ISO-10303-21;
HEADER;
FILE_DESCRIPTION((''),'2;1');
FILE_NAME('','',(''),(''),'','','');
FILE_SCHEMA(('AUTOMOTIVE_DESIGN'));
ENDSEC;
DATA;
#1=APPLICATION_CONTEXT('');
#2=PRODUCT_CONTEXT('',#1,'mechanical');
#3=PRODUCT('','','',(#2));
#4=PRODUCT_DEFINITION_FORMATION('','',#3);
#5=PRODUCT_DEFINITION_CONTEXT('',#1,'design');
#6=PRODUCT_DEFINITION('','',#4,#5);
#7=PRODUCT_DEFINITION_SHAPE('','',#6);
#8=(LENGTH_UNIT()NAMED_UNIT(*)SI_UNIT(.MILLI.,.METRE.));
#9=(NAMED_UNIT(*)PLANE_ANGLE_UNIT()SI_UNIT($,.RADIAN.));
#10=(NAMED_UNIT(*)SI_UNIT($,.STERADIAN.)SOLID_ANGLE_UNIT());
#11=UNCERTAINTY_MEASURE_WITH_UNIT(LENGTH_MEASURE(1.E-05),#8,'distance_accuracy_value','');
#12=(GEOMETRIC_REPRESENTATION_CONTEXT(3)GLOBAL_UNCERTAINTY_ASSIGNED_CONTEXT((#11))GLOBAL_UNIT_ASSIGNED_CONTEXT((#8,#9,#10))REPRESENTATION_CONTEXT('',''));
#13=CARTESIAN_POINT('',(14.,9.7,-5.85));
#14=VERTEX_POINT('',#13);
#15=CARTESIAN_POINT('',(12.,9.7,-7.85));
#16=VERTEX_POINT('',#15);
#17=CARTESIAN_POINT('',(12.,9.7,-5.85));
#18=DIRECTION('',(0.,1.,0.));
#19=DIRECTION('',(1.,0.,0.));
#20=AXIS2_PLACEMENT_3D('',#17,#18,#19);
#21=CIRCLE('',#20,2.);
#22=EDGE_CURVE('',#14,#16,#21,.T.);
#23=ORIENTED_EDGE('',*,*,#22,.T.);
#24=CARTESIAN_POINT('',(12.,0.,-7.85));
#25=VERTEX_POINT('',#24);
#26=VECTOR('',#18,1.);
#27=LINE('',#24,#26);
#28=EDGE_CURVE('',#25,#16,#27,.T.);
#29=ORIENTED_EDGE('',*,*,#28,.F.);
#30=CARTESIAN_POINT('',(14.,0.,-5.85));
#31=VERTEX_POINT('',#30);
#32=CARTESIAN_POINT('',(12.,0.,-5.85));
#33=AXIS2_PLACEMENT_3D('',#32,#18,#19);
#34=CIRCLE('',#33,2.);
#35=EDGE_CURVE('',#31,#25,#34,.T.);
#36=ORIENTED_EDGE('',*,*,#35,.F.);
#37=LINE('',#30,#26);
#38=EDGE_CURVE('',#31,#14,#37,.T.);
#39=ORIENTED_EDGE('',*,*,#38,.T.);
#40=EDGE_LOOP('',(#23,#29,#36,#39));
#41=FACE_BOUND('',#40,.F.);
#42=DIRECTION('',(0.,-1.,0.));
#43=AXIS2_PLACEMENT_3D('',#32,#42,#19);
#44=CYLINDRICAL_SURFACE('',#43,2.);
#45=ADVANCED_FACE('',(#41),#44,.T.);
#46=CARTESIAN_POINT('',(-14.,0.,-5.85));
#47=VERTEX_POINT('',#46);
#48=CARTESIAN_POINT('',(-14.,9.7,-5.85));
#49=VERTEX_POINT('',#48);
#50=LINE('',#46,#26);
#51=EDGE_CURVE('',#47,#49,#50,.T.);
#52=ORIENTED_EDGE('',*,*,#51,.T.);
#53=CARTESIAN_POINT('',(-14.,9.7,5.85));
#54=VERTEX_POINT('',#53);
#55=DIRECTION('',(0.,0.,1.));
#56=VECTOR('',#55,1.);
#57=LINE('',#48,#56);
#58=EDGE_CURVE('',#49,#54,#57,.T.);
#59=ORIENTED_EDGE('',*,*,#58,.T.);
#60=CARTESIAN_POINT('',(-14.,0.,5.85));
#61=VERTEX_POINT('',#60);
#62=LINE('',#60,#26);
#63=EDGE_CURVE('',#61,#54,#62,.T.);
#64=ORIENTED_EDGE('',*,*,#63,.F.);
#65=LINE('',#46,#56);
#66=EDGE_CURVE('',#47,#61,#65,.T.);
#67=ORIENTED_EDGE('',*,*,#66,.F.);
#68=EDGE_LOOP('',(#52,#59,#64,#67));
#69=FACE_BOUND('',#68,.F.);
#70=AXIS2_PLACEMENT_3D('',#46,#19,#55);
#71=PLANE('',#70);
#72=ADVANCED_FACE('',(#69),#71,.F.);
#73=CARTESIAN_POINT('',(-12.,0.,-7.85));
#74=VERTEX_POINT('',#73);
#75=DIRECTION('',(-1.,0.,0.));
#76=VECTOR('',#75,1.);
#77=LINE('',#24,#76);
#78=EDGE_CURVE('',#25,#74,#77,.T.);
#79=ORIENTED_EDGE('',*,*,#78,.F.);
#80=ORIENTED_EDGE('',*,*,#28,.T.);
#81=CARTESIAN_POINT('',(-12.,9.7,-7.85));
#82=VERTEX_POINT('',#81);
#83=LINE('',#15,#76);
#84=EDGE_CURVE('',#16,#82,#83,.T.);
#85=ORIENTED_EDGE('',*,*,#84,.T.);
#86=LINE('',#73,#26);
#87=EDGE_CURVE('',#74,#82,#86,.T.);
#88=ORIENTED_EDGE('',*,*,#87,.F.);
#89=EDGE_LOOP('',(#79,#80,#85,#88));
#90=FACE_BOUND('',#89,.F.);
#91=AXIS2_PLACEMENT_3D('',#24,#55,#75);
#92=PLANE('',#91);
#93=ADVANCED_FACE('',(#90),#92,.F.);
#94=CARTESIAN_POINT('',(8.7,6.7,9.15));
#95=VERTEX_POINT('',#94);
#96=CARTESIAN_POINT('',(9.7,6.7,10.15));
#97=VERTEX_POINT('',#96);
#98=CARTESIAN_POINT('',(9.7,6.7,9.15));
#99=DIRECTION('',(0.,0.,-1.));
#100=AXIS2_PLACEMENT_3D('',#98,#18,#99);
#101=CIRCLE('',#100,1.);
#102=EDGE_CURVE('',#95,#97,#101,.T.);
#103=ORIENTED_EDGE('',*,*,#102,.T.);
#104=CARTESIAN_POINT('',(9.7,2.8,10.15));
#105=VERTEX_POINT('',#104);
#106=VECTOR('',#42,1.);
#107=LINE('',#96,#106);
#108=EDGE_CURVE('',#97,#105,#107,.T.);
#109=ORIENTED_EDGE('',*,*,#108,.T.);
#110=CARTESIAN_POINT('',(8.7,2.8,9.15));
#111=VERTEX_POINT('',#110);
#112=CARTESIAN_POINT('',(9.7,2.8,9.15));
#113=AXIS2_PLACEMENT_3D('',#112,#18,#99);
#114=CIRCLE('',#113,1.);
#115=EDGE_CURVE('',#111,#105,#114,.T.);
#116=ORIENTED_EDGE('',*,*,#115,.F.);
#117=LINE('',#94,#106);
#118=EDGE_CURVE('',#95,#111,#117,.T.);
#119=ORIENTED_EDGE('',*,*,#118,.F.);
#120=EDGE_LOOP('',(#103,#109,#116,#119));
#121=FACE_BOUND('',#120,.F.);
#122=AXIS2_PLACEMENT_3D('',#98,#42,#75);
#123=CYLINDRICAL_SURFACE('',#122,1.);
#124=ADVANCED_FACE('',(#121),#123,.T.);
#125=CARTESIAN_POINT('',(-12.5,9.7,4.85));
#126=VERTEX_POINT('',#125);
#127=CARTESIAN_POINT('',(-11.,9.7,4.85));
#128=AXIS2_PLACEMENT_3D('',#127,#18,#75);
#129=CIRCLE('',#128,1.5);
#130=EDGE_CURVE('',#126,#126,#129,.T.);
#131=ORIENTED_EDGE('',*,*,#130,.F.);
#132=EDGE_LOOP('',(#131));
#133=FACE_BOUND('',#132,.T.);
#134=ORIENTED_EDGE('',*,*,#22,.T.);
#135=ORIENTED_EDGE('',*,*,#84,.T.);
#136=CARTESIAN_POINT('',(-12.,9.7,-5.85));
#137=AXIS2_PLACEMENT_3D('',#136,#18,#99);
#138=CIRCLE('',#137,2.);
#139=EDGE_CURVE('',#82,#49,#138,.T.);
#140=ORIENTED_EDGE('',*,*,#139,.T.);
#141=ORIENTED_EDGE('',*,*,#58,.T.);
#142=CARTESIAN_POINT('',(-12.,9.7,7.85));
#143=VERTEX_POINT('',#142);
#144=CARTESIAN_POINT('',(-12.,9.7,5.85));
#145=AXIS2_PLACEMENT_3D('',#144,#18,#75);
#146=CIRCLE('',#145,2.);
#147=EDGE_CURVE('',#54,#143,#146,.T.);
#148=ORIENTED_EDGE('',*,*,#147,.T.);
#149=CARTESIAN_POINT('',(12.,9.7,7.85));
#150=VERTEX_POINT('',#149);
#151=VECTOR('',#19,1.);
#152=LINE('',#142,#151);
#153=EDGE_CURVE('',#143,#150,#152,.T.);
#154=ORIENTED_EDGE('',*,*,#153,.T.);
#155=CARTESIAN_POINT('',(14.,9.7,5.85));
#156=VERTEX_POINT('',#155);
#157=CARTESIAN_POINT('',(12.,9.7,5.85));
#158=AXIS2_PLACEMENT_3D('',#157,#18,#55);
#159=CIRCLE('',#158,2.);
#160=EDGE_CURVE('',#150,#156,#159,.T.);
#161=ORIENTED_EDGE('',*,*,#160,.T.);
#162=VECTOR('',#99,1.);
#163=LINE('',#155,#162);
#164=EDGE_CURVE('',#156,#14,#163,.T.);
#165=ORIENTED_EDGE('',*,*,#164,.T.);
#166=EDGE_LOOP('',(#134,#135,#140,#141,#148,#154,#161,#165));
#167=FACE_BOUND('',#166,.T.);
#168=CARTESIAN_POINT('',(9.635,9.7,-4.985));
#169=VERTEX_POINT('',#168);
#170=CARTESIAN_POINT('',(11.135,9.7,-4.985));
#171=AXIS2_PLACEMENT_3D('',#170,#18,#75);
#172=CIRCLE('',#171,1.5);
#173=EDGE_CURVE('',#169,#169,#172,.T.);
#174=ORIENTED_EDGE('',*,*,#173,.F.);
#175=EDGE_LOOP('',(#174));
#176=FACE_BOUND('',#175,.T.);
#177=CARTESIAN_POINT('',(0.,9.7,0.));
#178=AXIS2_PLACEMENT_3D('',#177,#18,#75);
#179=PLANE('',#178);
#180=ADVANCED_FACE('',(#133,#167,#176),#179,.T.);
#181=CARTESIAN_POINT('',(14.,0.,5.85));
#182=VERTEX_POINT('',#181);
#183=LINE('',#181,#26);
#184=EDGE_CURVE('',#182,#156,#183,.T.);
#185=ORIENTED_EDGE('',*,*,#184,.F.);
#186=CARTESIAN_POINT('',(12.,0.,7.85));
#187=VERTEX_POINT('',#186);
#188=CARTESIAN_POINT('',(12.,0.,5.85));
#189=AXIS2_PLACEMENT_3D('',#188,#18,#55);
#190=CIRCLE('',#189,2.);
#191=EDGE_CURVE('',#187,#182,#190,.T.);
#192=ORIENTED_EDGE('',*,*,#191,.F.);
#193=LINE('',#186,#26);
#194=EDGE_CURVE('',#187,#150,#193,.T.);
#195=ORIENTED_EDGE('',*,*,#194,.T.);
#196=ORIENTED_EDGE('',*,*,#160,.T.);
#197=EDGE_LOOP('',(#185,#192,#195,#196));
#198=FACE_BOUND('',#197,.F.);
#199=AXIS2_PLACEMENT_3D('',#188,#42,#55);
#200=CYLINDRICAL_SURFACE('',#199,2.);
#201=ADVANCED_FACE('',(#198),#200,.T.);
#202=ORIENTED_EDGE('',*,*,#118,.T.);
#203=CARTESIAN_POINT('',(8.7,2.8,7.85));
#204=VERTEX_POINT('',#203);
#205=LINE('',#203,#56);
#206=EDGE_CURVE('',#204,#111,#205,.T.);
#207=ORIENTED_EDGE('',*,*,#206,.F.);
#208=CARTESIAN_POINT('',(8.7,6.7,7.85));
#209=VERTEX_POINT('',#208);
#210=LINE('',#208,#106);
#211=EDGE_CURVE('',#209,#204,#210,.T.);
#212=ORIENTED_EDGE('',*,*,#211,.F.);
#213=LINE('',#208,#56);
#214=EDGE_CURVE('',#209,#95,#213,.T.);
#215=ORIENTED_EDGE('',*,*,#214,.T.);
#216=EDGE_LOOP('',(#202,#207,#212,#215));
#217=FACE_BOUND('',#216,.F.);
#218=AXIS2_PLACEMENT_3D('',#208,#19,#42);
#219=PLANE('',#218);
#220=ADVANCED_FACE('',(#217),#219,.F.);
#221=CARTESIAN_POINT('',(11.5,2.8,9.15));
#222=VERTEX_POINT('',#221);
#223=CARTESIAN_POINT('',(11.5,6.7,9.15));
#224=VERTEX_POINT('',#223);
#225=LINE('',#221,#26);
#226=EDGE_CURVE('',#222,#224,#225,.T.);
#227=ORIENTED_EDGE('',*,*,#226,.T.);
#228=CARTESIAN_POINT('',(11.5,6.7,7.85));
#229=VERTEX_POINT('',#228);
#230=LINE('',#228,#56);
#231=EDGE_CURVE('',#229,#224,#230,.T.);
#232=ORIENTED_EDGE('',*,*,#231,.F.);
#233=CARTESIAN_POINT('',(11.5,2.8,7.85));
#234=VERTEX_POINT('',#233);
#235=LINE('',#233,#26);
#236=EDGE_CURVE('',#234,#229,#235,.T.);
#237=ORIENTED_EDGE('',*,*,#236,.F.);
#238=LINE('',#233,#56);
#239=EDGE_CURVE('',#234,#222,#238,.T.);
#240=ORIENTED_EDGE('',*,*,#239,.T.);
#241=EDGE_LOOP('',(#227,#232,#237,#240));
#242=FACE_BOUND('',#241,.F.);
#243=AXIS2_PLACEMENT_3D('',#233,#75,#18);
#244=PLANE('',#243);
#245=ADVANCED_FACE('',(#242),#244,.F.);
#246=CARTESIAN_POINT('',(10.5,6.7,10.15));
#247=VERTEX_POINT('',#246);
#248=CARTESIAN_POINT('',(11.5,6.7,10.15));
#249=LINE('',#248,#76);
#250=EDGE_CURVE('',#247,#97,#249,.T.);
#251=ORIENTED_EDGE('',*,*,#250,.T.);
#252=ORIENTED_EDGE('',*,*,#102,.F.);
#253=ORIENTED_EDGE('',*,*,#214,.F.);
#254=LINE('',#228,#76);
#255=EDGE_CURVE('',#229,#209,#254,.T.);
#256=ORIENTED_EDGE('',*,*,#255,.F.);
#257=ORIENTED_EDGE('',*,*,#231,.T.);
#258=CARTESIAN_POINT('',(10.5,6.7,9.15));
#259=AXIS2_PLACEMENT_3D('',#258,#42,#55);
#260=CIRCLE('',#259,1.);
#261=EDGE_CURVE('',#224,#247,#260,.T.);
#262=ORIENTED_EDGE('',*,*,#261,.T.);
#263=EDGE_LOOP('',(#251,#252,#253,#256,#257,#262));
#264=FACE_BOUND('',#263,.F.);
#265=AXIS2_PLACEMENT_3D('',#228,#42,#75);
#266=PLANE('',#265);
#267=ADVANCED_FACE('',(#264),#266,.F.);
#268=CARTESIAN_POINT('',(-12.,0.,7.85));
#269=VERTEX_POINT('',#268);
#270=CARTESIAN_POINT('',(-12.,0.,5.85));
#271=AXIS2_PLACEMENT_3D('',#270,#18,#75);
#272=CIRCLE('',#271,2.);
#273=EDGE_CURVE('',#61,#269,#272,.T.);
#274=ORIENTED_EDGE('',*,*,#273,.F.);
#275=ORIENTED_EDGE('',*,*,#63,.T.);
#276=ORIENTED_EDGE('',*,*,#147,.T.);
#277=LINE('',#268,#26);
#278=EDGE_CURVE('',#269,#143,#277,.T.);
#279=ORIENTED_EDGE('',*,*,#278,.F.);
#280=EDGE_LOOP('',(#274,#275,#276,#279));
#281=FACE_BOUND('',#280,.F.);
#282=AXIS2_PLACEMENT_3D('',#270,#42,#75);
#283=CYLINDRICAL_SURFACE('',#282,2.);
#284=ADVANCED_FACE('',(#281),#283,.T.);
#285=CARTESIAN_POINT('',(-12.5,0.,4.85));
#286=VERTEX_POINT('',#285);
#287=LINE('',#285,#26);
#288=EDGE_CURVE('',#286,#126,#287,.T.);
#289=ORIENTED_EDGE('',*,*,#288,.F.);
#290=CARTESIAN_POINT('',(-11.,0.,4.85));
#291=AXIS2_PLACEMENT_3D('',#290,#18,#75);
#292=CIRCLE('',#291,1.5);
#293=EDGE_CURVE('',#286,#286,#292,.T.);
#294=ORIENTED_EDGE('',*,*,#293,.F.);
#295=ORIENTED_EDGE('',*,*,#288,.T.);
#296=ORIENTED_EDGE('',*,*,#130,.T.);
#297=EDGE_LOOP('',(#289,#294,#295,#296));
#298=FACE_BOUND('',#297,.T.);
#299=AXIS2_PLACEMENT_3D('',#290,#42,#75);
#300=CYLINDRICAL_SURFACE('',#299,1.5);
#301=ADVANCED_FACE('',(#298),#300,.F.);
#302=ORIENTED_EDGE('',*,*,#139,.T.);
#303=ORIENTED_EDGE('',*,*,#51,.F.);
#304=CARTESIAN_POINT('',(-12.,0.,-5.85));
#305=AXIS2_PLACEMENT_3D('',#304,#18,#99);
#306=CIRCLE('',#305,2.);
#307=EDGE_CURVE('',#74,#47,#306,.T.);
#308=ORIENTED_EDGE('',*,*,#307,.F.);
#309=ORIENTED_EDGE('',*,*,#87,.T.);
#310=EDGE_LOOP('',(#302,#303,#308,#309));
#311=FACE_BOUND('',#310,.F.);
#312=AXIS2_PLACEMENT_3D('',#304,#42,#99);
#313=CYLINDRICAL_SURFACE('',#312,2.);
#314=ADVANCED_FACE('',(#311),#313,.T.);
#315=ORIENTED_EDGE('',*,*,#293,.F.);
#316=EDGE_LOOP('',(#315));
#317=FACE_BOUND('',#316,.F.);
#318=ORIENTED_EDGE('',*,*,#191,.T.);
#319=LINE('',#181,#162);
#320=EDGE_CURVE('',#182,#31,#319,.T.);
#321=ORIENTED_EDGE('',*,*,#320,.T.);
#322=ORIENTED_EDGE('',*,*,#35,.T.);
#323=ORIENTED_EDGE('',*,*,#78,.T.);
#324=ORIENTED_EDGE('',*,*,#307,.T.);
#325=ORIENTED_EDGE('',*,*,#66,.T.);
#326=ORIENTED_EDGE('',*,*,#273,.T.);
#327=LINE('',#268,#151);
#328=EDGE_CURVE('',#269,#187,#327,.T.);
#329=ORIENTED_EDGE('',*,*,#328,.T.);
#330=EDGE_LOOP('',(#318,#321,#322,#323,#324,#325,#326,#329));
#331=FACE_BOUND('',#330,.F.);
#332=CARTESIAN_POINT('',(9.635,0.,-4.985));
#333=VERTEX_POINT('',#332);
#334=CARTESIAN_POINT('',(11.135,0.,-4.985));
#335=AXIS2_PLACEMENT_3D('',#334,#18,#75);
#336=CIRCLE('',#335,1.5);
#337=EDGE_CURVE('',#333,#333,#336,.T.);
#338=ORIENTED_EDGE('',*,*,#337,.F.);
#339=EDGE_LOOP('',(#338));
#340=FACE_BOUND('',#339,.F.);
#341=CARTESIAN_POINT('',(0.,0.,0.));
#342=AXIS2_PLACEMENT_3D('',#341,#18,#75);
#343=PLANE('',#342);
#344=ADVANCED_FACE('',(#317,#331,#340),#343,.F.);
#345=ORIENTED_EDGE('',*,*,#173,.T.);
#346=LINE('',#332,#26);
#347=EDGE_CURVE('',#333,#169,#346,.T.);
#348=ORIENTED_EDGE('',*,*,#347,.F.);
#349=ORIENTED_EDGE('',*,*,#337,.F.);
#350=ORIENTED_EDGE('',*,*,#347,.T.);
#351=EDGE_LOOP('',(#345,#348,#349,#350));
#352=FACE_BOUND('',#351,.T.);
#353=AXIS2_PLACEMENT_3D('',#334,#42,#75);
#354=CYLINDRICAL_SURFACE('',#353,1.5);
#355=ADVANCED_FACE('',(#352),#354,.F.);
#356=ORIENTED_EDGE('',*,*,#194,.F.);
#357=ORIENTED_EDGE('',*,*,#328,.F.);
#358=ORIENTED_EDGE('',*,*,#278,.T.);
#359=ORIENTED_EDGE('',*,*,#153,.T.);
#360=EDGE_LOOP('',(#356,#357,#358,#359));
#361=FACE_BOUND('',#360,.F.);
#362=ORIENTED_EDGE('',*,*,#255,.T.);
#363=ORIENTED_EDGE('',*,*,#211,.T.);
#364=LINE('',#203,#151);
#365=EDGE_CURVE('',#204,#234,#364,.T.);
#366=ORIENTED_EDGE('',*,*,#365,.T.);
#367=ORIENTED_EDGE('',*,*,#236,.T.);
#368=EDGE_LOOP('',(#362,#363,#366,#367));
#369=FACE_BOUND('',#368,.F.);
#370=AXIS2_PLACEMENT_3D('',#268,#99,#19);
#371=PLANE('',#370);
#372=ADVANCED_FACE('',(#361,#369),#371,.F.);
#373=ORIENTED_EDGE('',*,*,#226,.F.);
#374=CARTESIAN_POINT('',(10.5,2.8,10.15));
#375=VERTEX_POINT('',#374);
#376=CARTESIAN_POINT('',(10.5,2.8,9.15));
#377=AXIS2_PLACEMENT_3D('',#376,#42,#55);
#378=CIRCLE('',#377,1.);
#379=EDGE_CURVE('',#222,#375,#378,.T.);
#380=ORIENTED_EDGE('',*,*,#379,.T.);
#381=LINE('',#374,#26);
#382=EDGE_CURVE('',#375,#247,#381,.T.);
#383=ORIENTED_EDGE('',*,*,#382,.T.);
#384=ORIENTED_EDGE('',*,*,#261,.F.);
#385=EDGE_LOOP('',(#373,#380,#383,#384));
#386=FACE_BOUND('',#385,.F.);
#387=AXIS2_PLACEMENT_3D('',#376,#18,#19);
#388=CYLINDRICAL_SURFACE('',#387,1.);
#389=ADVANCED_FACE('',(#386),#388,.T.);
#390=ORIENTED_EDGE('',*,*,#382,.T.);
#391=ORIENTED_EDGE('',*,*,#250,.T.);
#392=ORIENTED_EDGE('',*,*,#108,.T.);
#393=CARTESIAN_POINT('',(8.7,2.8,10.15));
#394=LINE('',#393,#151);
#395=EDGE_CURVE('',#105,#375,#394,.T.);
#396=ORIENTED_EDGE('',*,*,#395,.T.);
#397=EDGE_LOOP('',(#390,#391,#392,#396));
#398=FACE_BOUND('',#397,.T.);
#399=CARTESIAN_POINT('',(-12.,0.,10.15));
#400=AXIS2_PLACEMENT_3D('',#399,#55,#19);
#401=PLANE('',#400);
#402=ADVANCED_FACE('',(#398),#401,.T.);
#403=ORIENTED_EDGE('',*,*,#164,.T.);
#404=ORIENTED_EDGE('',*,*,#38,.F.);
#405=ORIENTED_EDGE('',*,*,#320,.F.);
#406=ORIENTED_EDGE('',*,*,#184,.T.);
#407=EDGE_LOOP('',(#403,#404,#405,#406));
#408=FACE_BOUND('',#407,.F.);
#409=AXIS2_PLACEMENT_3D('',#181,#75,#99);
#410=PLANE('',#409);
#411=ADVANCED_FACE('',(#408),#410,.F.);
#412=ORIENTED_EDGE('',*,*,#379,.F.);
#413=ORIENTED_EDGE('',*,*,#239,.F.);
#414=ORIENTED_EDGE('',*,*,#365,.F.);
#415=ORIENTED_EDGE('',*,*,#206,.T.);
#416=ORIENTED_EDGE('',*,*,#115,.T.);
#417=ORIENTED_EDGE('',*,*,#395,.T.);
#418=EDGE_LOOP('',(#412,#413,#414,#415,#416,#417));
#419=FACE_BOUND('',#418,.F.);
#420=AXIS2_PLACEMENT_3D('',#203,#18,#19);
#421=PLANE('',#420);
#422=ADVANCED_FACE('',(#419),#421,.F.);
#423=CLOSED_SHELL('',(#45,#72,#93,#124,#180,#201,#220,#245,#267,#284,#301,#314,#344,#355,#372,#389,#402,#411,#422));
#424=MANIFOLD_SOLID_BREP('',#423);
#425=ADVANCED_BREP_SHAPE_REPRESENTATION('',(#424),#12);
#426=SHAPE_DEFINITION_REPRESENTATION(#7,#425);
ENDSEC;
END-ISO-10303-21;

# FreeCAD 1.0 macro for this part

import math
import FreeCAD as App
import Part
import Sketcher
from FreeCAD import Vector
Q = App.Units.Quantity


def edges_at(feature, points):
    """Names of the edges that pass closest to the given points."""
    edges = feature.Shape.Edges
    near = lambda p: min(range(len(edges)), key=lambda i: edges[i].distToShape(Part.Vertex(*p))[0])
    return sorted({f"Edge{near(p) + 1}" for p in points})

doc = App.newDocument("Part")
body = doc.addObject("PartDesign::Body", "Body")

sketch1 = doc.addObject("Sketcher::SketchObject", "Sketch")
body.addObject(sketch1)
sketch1.AttachmentSupport = (doc.XZ_Plane, [""])
sketch1.MapMode = "FlatFace"
sketch1.addGeometry([
    Part.ArcOfCircle(Part.Circle(Vector(-12, 5.8, 0), Vector(0, 0, 1), 2), math.radians(90), math.radians(180)),
    Part.LineSegment(Vector(-12, 7.8, 0), Vector(12, 7.8, 0)),
    Part.ArcOfCircle(Part.Circle(Vector(12, 5.8, 0), Vector(0, 0, 1), 2), math.radians(0), math.radians(90)),
    Part.LineSegment(Vector(14, 5.8, 0), Vector(14, -5.8, 0)),
    Part.ArcOfCircle(Part.Circle(Vector(12, -5.8, 0), Vector(0, 0, 1), 2), math.radians(-90), math.radians(0)),
    Part.LineSegment(Vector(12, -7.8, 0), Vector(-12, -7.8, 0)),
    Part.ArcOfCircle(Part.Circle(Vector(-12, -5.8, 0), Vector(0, 0, 1), 2), math.radians(180), math.radians(270)),
    Part.LineSegment(Vector(-14, -5.8, 0), Vector(-14, 5.8, 0)),
    Part.Circle(Vector(11.1, -5, 0), Vector(0, 0, 1), 1.5),
    Part.Circle(Vector(-11, 4.8, 0), Vector(0, 0, 1), 1.5),
], False)
sketch1.addConstraint([
    Sketcher.Constraint("Tangent", 0, 1, 1, 1),
    Sketcher.Constraint("Tangent", 1, 2, 2, 2),
    Sketcher.Constraint("Tangent", 2, 1, 3, 1),
    Sketcher.Constraint("Tangent", 3, 2, 4, 2),
    Sketcher.Constraint("Tangent", 4, 1, 5, 1),
    Sketcher.Constraint("Tangent", 5, 2, 6, 2),
    Sketcher.Constraint("Tangent", 6, 1, 7, 1),
    Sketcher.Constraint("Tangent", 7, 2, 0, 2),
    Sketcher.Constraint("Horizontal", 1),
    Sketcher.Constraint("Vertical", 3),
    Sketcher.Constraint("Horizontal", 5),
    Sketcher.Constraint("Vertical", 7),
    Sketcher.Constraint("Equal", 0, 2),
    Sketcher.Constraint("Equal", 2, 4),
    Sketcher.Constraint("Equal", 4, 6),
    Sketcher.Constraint("Equal", 8, 9),
    Sketcher.Constraint("Symmetric", 0, 3, 4, 3, -1, 1),
    Sketcher.Constraint("Diameter", 8, Q("3 mm")),
    Sketcher.Constraint("Radius", 0, Q("2 mm")),
    Sketcher.Constraint("DistanceY", 9, 3, 0, 1, Q("3 mm")),
    Sketcher.Constraint("DistanceX", 6, 1, 9, 3, Q("3 mm")),
    Sketcher.Constraint("DistanceY", 5, 2, 0, 1, Q("15.7 mm")),
    Sketcher.Constraint("DistanceX", 1, 1, 1, 2, Q("24 mm")),
    Sketcher.Constraint("DistanceX", -1, 1, 8, 3, Q("11.135 mm")),
    Sketcher.Constraint("DistanceY", 8, 3, -1, 1, Q("4.985 mm")),
])
pad1 = doc.addObject("PartDesign::Pad", "Pad")
body.addObject(pad1)
pad1.Profile = sketch1
pad1.Length = 9.7
pad1.Reversed = True

sketch2 = doc.addObject("Sketcher::SketchObject", "Sketch001")
body.addObject(sketch2)
sketch2.AttachmentSupport = (doc.XY_Plane, [""])
sketch2.MapMode = "FlatFace"
sketch2.AttachmentOffset = App.Placement(Vector(0, 0, 7.85), App.Rotation())
sketch2.addGeometry([
    Part.LineSegment(Vector(11.5, 2.8, 0), Vector(11.5, 6.7, 0)),
    Part.LineSegment(Vector(11.5, 6.7, 0), Vector(8.7, 6.7, 0)),
    Part.LineSegment(Vector(8.7, 6.7, 0), Vector(8.7, 2.8, 0)),
    Part.LineSegment(Vector(8.7, 2.8, 0), Vector(11.5, 2.8, 0)),
], False)
sketch2.addConstraint([
    Sketcher.Constraint("Coincident", 0, 2, 1, 1),
    Sketcher.Constraint("Coincident", 1, 2, 2, 1),
    Sketcher.Constraint("Coincident", 2, 2, 3, 1),
    Sketcher.Constraint("Coincident", 3, 2, 0, 1),
    Sketcher.Constraint("Vertical", 0),
    Sketcher.Constraint("Horizontal", 1),
    Sketcher.Constraint("Vertical", 2),
    Sketcher.Constraint("Horizontal", 3),
    Sketcher.Constraint("DistanceX", 1, 2, 1, 1, Q("2.8 mm")),
    Sketcher.Constraint("DistanceY", 0, 1, 0, 2, Q("3.9 mm")),
    Sketcher.Constraint("DistanceY", -1, 1, 2, 2, Q("2.8 mm")),
    Sketcher.Constraint("DistanceX", -1, 1, 0, 2, Q("11.5 mm")),
])
pad2 = doc.addObject("PartDesign::Pad", "Pad001")
body.addObject(pad2)
pad2.Profile = sketch2
pad2.Length = 2.3
doc.recompute()

fillet = doc.addObject("PartDesign::Fillet", "Fillet")
body.addObject(fillet)
fillet.Base = (pad2, edges_at(pad2, [(8.7, 4.75, 10.15), (11.5, 4.75, 10.15)]))
fillet.Radius = 1

doc.recompute()
